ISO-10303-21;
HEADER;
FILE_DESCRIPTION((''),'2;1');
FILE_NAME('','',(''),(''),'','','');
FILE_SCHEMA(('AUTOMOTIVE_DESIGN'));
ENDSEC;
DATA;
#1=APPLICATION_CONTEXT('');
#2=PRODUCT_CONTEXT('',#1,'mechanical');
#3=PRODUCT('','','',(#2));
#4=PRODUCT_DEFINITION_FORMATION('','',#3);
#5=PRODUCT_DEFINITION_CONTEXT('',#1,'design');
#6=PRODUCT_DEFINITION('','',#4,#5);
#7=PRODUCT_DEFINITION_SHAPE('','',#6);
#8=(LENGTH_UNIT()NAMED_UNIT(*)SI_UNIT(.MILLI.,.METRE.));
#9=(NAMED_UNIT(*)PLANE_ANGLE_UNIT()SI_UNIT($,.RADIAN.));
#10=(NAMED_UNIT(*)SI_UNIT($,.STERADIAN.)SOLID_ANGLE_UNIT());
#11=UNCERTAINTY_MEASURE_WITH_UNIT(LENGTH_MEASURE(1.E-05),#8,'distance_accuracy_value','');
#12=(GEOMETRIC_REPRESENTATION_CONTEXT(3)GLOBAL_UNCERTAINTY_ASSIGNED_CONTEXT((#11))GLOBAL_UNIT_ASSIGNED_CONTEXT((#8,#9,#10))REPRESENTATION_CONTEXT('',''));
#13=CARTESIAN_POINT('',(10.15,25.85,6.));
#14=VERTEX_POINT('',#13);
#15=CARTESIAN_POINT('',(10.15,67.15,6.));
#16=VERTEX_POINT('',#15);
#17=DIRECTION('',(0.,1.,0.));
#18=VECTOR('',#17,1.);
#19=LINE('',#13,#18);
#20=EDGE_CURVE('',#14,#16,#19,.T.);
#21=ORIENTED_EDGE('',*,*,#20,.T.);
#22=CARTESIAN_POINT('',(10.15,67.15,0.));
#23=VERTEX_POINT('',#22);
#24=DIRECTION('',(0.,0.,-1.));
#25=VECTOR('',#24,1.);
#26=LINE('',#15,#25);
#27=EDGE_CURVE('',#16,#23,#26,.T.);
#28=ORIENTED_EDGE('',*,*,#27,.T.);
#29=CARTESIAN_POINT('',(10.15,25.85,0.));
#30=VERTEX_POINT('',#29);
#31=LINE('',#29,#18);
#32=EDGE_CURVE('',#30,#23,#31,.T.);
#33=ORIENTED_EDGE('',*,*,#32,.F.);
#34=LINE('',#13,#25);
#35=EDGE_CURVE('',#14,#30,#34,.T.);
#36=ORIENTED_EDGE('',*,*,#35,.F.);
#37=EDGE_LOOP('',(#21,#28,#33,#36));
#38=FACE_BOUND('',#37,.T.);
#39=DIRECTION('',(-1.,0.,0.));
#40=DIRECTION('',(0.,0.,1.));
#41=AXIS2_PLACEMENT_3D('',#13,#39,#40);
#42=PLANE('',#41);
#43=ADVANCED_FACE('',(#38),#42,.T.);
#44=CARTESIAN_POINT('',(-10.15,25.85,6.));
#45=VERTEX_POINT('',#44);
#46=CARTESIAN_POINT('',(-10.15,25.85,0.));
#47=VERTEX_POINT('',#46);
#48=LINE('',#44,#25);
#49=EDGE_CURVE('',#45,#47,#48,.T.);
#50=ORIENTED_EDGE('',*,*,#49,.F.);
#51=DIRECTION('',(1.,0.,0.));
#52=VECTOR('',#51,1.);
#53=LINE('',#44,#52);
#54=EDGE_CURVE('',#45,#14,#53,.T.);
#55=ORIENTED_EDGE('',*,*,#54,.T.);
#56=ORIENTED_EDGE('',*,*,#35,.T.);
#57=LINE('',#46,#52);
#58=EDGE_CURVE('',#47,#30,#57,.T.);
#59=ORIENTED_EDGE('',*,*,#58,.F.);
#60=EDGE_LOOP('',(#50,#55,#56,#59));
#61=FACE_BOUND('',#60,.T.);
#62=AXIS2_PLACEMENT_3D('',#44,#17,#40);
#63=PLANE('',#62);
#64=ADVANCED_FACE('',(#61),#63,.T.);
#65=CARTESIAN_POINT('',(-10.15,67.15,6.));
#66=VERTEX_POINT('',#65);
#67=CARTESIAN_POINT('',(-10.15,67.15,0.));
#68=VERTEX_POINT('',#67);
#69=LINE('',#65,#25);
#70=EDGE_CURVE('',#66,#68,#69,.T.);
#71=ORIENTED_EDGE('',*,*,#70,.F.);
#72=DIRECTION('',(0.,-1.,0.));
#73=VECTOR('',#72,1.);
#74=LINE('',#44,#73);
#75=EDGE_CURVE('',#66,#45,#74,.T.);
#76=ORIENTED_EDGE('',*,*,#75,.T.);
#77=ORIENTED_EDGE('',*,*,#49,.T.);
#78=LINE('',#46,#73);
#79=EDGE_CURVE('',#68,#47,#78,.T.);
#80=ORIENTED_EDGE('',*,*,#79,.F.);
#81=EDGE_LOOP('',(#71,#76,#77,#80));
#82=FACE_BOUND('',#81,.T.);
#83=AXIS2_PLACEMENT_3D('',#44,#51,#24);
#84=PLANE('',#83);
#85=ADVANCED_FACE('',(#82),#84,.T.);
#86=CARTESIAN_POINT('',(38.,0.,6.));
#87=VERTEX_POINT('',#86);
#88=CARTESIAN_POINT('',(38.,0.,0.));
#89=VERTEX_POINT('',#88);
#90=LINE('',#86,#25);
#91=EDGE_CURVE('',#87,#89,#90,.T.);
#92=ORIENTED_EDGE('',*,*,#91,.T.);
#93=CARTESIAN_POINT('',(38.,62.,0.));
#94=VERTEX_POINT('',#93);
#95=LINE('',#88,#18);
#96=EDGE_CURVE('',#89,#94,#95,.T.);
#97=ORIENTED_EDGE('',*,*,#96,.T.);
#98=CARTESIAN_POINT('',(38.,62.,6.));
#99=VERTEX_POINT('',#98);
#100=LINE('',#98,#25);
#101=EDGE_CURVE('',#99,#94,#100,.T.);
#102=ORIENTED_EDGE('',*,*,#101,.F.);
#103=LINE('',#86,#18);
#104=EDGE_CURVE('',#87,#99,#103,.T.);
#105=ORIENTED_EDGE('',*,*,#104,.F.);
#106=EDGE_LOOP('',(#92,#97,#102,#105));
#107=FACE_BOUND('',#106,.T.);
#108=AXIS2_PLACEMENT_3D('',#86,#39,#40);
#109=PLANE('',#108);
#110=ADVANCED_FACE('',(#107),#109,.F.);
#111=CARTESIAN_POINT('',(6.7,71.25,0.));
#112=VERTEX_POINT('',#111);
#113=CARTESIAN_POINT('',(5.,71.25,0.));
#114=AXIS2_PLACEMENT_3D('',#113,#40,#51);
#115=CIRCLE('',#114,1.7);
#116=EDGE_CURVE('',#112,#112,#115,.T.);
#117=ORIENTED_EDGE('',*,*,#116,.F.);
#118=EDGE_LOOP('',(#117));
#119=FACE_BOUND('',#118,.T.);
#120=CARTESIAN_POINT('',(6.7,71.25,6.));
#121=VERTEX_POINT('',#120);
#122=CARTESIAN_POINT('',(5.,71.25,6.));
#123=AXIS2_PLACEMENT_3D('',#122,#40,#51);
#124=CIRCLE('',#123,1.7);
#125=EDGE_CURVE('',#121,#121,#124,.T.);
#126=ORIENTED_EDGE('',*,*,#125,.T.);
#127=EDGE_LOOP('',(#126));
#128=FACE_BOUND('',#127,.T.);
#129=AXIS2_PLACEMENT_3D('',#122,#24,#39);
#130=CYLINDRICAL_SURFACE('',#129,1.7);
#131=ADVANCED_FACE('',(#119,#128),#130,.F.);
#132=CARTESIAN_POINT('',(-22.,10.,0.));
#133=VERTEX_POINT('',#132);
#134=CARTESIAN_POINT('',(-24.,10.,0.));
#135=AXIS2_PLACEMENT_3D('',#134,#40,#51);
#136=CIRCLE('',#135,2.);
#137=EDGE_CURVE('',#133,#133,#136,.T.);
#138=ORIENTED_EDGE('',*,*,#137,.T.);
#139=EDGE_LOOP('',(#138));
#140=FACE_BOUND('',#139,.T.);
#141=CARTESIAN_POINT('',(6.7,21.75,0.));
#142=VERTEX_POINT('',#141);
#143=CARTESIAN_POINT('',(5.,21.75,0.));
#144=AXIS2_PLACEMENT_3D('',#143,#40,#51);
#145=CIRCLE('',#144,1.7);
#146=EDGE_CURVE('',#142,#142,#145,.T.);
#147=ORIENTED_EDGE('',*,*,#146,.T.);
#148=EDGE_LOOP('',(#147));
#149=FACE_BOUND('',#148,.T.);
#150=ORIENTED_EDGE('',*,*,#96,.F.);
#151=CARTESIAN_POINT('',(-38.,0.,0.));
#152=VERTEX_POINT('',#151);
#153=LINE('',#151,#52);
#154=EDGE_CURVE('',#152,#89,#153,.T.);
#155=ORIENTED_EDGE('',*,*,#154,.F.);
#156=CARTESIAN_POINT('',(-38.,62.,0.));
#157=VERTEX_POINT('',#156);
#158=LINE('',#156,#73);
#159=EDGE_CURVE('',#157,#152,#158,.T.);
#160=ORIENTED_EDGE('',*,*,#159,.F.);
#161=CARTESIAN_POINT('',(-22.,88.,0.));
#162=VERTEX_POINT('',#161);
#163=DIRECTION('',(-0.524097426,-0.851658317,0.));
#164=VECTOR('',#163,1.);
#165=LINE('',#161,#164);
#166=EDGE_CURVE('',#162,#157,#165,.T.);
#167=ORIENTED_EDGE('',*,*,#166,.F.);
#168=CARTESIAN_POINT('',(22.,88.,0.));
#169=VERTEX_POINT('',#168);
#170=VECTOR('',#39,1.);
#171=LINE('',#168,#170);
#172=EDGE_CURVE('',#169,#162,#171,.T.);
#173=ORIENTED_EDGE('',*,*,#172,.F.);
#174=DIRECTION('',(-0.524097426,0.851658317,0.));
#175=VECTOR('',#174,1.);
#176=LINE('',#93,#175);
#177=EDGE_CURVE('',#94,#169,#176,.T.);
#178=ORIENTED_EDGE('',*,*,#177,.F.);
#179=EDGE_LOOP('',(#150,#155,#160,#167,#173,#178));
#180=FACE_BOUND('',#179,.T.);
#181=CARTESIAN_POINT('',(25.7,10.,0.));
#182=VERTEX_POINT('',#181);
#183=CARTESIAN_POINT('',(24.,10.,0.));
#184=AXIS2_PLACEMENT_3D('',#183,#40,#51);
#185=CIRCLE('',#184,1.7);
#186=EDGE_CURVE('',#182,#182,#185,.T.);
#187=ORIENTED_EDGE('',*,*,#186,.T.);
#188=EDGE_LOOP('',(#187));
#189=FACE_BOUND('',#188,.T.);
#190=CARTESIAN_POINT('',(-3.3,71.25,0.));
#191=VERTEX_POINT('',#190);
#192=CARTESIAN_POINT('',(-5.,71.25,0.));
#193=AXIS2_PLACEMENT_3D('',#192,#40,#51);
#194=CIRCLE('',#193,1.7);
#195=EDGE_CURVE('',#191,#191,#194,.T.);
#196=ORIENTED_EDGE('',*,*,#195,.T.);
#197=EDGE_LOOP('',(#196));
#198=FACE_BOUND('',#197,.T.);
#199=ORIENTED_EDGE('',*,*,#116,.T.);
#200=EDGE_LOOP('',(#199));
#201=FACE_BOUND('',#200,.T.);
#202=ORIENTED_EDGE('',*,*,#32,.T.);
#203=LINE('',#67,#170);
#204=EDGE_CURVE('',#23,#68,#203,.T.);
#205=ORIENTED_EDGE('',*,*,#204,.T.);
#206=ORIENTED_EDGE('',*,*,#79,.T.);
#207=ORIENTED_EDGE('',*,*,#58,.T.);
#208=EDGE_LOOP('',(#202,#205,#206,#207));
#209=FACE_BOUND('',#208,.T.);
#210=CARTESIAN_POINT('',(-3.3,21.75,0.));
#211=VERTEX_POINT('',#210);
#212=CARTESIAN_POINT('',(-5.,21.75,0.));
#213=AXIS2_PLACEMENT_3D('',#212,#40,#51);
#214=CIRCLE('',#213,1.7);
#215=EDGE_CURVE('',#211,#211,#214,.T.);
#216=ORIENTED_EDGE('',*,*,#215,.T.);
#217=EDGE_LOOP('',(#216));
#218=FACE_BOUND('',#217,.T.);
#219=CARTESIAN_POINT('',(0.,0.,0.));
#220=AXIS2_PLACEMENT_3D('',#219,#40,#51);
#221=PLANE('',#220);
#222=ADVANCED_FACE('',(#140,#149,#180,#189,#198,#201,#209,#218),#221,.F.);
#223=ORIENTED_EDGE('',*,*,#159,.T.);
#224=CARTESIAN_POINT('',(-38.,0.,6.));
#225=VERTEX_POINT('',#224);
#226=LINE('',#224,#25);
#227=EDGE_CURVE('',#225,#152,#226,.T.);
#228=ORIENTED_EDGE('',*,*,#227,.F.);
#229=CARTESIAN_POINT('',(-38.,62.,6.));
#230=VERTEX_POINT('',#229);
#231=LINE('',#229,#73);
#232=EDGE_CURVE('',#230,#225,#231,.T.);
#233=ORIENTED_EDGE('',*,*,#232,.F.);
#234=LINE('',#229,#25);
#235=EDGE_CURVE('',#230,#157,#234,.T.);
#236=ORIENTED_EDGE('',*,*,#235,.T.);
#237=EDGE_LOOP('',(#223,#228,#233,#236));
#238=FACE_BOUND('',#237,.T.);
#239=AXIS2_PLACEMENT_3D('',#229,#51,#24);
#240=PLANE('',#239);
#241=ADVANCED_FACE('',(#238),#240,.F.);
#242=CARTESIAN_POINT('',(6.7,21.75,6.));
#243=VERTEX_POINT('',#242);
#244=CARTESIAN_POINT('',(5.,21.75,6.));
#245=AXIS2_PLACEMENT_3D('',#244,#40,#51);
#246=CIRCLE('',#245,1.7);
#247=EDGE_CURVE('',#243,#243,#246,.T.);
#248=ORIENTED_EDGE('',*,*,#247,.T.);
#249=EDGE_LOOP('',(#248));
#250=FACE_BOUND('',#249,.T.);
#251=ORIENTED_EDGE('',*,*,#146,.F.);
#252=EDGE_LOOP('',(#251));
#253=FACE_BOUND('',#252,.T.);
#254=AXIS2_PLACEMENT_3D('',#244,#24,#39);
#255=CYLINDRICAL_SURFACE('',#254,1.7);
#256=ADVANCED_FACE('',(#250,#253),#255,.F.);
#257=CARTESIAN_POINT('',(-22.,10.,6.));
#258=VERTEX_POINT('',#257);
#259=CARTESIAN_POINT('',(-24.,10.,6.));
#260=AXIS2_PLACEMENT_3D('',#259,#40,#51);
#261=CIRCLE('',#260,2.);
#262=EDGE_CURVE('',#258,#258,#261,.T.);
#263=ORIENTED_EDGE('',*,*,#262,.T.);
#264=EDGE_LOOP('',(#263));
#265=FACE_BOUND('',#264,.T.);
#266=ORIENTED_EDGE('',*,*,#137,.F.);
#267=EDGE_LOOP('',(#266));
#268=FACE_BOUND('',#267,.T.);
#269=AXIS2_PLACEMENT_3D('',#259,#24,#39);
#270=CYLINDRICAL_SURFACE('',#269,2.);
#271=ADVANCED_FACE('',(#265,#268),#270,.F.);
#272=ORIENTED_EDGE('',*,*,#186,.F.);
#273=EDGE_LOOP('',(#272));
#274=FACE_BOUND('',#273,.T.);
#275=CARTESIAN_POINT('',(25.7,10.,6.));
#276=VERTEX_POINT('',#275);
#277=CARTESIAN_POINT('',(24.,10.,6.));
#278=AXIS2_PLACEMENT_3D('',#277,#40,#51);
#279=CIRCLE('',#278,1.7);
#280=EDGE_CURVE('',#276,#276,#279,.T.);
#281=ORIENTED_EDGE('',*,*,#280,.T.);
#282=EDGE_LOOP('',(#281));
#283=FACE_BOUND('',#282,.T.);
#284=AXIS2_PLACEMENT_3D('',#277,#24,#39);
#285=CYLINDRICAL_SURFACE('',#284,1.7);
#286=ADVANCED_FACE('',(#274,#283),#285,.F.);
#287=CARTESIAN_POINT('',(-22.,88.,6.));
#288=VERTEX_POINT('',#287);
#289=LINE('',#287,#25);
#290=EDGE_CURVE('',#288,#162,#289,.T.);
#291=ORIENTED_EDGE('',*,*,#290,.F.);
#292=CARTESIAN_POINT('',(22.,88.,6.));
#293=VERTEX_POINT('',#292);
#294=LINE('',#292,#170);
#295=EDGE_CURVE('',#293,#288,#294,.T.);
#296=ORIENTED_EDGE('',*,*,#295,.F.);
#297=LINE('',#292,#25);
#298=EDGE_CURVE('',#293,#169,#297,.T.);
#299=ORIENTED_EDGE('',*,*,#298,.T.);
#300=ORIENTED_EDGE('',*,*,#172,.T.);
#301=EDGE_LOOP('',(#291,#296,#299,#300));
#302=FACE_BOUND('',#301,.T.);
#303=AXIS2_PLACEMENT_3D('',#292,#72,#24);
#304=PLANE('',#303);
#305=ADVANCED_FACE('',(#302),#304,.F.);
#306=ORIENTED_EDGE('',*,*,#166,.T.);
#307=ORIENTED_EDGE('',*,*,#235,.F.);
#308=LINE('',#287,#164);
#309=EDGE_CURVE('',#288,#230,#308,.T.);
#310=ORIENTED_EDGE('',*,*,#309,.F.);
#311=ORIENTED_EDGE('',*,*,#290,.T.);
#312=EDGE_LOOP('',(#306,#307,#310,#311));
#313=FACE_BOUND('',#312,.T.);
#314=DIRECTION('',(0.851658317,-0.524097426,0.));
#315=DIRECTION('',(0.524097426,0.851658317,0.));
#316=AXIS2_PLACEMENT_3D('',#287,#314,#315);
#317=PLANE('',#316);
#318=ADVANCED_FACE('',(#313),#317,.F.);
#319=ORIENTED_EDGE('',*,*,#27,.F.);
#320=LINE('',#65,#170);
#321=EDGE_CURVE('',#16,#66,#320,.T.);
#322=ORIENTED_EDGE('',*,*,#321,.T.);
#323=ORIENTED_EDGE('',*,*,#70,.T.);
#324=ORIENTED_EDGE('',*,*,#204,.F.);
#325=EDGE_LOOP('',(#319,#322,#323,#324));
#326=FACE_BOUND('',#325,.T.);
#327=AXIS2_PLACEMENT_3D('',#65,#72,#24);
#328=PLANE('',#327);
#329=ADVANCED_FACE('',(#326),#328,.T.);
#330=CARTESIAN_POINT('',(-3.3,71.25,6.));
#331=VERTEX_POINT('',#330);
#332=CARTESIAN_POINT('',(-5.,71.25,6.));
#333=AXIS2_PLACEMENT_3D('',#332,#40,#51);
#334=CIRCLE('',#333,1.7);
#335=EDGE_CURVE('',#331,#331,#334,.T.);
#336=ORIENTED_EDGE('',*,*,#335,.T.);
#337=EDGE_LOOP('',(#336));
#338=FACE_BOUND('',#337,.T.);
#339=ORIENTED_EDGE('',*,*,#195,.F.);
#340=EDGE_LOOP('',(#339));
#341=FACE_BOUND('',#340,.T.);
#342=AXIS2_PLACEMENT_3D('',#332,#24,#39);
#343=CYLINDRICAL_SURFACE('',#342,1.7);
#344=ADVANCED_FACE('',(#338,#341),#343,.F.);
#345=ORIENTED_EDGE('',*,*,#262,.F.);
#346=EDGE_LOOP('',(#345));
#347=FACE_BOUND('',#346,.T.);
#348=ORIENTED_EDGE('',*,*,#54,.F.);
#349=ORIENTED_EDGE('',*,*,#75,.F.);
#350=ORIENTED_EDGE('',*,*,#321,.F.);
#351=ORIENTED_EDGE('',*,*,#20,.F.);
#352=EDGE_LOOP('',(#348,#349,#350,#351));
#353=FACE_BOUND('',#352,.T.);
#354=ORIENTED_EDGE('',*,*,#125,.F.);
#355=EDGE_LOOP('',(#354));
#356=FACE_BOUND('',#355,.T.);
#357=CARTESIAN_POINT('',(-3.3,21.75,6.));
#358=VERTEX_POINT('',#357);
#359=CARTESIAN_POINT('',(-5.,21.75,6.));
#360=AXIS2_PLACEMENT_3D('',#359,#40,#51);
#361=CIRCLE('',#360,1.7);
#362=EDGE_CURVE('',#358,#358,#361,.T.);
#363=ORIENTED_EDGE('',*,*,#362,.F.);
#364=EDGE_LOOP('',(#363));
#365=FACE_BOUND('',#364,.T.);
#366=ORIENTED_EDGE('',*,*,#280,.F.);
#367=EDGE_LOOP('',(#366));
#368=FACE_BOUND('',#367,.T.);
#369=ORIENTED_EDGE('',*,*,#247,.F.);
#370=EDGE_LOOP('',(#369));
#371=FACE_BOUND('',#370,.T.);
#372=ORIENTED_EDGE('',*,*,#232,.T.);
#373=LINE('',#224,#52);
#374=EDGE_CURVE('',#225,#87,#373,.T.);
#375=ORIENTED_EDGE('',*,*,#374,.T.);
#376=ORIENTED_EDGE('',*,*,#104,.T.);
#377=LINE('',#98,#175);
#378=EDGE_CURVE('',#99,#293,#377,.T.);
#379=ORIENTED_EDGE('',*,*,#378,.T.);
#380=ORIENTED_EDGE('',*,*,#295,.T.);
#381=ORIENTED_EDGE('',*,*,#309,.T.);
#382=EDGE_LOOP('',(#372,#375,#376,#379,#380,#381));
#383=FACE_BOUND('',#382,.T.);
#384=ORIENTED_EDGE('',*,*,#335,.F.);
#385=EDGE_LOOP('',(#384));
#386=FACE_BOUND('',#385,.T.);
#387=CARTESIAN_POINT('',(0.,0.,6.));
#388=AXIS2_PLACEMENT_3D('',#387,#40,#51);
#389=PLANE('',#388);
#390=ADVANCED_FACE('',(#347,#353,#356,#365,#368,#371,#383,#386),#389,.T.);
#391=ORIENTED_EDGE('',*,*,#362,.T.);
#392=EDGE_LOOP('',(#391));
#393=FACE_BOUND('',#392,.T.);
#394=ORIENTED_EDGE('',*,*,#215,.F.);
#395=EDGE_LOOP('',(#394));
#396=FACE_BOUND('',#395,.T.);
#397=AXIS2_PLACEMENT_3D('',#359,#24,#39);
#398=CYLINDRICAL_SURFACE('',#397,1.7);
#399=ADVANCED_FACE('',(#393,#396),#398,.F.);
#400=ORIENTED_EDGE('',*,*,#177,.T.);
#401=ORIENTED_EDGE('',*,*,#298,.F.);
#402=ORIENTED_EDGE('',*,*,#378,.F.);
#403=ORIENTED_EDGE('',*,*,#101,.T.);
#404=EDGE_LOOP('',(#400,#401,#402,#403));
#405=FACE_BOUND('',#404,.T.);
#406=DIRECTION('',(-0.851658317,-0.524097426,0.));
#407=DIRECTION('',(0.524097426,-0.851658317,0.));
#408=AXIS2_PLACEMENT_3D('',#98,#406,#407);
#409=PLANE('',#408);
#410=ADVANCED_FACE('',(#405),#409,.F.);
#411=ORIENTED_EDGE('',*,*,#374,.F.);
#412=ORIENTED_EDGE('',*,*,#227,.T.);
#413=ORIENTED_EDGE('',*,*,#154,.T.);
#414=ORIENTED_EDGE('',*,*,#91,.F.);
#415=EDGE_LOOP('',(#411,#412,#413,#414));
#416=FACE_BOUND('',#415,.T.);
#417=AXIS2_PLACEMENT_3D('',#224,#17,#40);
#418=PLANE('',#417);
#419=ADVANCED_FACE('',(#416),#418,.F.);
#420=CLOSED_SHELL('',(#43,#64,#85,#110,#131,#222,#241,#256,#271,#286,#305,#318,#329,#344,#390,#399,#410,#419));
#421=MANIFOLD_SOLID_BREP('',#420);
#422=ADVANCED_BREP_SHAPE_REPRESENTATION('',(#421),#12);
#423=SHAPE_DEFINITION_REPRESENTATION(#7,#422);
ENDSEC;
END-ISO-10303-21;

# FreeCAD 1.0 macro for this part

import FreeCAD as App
import Part
import Sketcher
from FreeCAD import Vector
Q = App.Units.Quantity

doc = App.newDocument("Part")
body = doc.addObject("PartDesign::Body", "Body")

# Sketch on XY plane
sketch1 = body.newObject("Sketcher::SketchObject", "Sketch")
sketch1.AttachmentSupport = (doc.getObject("XY_Plane"), [""])
sketch1.MapMode = "FlatFace"
sketch1.addGeometry(Part.LineSegment(Vector(-38, 0, 0), Vector(38, 0, 0)), False)
sketch1.addGeometry(Part.LineSegment(Vector(38, 0, 0), Vector(38, 62, 0)), False)
sketch1.addGeometry(Part.LineSegment(Vector(38, 62, 0), Vector(22, 88, 0)), False)
sketch1.addGeometry(Part.LineSegment(Vector(22, 88, 0), Vector(-22, 88, 0)), False)
sketch1.addGeometry(Part.LineSegment(Vector(-22, 88, 0), Vector(-38, 62, 0)), False)
sketch1.addGeometry(Part.LineSegment(Vector(-38, 62, 0), Vector(-38, 0, 0)), False)
sketch1.addGeometry(Part.Circle(Vector(-24, 10, 0), Vector(0, 0, 1), 2), False)
sketch1.addGeometry(Part.Circle(Vector(-5, 21.8, 0), Vector(0, 0, 1), 1.7), False)
sketch1.addGeometry(Part.Circle(Vector(5, 21.8, 0), Vector(0, 0, 1), 1.7), False)
sketch1.addGeometry(Part.Circle(Vector(24, 10, 0), Vector(0, 0, 1), 1.7), False)
sketch1.addGeometry(Part.Circle(Vector(-5, 71.2, 0), Vector(0, 0, 1), 1.7), False)
sketch1.addGeometry(Part.LineSegment(Vector(10.2, 25.9, 0), Vector(-10.2, 25.9, 0)), False)
sketch1.addGeometry(Part.LineSegment(Vector(-10.2, 25.9, 0), Vector(-10.2, 67.2, 0)), False)
sketch1.addGeometry(Part.LineSegment(Vector(-10.2, 67.2, 0), Vector(10.2, 67.2, 0)), False)
sketch1.addGeometry(Part.LineSegment(Vector(10.2, 67.2, 0), Vector(10.2, 25.9, 0)), False)
sketch1.addGeometry(Part.Circle(Vector(5, 71.2, 0), Vector(0, 0, 1), 1.7), False)
sketch1.addConstraint(Sketcher.Constraint("Coincident", 0, 2, 1, 1))
sketch1.addConstraint(Sketcher.Constraint("Coincident", 1, 2, 2, 1))
sketch1.addConstraint(Sketcher.Constraint("Coincident", 2, 2, 3, 1))
sketch1.addConstraint(Sketcher.Constraint("Coincident", 3, 2, 4, 1))
sketch1.addConstraint(Sketcher.Constraint("Coincident", 4, 2, 5, 1))
sketch1.addConstraint(Sketcher.Constraint("Coincident", 5, 2, 0, 1))
sketch1.addConstraint(Sketcher.Constraint("Coincident", 11, 2, 12, 1))
sketch1.addConstraint(Sketcher.Constraint("Coincident", 12, 2, 13, 1))
sketch1.addConstraint(Sketcher.Constraint("Coincident", 13, 2, 14, 1))
sketch1.addConstraint(Sketcher.Constraint("Coincident", 14, 2, 11, 1))
sketch1.addConstraint(Sketcher.Constraint("Horizontal", 0))
sketch1.addConstraint(Sketcher.Constraint("Vertical", 1))
sketch1.addConstraint(Sketcher.Constraint("Horizontal", 3))
sketch1.addConstraint(Sketcher.Constraint("Vertical", 5))
sketch1.addConstraint(Sketcher.Constraint("Horizontal", 11))
sketch1.addConstraint(Sketcher.Constraint("Vertical", 12))
sketch1.addConstraint(Sketcher.Constraint("Horizontal", 13))
sketch1.addConstraint(Sketcher.Constraint("Vertical", 14))
sketch1.addConstraint(Sketcher.Constraint("Equal", 7, 8))
sketch1.addConstraint(Sketcher.Constraint("Equal", 8, 9))
sketch1.addConstraint(Sketcher.Constraint("Equal", 9, 10))
sketch1.addConstraint(Sketcher.Constraint("Equal", 10, 15))
sketch1.addConstraint(Sketcher.Constraint("Symmetric", 0, 2, 5, 2, -1, 1))
sketch1.addConstraint(Sketcher.Constraint("Symmetric", 7, 3, 8, 3, -2))
sketch1.addConstraint(Sketcher.Constraint("Symmetric", 6, 3, 9, 3, -2))
sketch1.addConstraint(Sketcher.Constraint("Symmetric", 10, 3, 15, 3, -2))
sketch1.addConstraint(Sketcher.Constraint("Horizontal", 1, 2, 4, 2))
sketch1.addConstraint(Sketcher.Constraint("Vertical", 7, 3, 10, 3))
sketch1.addConstraint(Sketcher.Constraint("Equal", 2, 4))
sketch1.addConstraint(Sketcher.Constraint("Diameter", 6, Q("4 mm")))
sketch1.addConstraint(Sketcher.Constraint("Diameter", 7, Q("3.4 mm")))
sketch1.addConstraint(Sketcher.Constraint("DistanceX", 0, 1, 0, 2, Q("76 mm")))
sketch1.addConstraint(Sketcher.Constraint("DistanceX", 3, 2, 3, 1, Q("44 mm")))
sketch1.addConstraint(Sketcher.Constraint("DistanceY", 1, 1, 1, 2, Q("62 mm")))
sketch1.addConstraint(Sketcher.Constraint("DistanceX", 11, 2, 11, 1, Q("20.3 mm")))
sketch1.addConstraint(Sketcher.Constraint("DistanceY", 12, 1, 12, 2, Q("41.3 mm")))
sketch1.addConstraint(Sketcher.Constraint("DistanceX", 6, 3, -1, 1, Q("24 mm")))
sketch1.addConstraint(Sketcher.Constraint("DistanceY", -1, 1, 6, 3, Q("10 mm")))
sketch1.addConstraint(Sketcher.Constraint("DistanceX", 7, 3, -1, 1, Q("5 mm")))
sketch1.addConstraint(Sketcher.Constraint("DistanceY", -1, 1, 2, 2, Q("88 mm")))
sketch1.addConstraint(Sketcher.Constraint("DistanceY", 7, 3, 10, 3, Q("49.5 mm")))
sketch1.addConstraint(Sketcher.Constraint("DistanceY", 7, 3, 11, 2, Q("4.1 mm")))
sketch1.addConstraint(Sketcher.Constraint("DistanceY", -1, 1, 7, 3, Q("21.75 mm")))
sketch1.addConstraint(Sketcher.Constraint("DistanceX", 11, 2, -1, 1, Q("10.15 mm")))
pad1 = body.newObject("PartDesign::Pad", "Pad")
pad1.Profile = sketch1
pad1.Length = 6

doc.recompute()
